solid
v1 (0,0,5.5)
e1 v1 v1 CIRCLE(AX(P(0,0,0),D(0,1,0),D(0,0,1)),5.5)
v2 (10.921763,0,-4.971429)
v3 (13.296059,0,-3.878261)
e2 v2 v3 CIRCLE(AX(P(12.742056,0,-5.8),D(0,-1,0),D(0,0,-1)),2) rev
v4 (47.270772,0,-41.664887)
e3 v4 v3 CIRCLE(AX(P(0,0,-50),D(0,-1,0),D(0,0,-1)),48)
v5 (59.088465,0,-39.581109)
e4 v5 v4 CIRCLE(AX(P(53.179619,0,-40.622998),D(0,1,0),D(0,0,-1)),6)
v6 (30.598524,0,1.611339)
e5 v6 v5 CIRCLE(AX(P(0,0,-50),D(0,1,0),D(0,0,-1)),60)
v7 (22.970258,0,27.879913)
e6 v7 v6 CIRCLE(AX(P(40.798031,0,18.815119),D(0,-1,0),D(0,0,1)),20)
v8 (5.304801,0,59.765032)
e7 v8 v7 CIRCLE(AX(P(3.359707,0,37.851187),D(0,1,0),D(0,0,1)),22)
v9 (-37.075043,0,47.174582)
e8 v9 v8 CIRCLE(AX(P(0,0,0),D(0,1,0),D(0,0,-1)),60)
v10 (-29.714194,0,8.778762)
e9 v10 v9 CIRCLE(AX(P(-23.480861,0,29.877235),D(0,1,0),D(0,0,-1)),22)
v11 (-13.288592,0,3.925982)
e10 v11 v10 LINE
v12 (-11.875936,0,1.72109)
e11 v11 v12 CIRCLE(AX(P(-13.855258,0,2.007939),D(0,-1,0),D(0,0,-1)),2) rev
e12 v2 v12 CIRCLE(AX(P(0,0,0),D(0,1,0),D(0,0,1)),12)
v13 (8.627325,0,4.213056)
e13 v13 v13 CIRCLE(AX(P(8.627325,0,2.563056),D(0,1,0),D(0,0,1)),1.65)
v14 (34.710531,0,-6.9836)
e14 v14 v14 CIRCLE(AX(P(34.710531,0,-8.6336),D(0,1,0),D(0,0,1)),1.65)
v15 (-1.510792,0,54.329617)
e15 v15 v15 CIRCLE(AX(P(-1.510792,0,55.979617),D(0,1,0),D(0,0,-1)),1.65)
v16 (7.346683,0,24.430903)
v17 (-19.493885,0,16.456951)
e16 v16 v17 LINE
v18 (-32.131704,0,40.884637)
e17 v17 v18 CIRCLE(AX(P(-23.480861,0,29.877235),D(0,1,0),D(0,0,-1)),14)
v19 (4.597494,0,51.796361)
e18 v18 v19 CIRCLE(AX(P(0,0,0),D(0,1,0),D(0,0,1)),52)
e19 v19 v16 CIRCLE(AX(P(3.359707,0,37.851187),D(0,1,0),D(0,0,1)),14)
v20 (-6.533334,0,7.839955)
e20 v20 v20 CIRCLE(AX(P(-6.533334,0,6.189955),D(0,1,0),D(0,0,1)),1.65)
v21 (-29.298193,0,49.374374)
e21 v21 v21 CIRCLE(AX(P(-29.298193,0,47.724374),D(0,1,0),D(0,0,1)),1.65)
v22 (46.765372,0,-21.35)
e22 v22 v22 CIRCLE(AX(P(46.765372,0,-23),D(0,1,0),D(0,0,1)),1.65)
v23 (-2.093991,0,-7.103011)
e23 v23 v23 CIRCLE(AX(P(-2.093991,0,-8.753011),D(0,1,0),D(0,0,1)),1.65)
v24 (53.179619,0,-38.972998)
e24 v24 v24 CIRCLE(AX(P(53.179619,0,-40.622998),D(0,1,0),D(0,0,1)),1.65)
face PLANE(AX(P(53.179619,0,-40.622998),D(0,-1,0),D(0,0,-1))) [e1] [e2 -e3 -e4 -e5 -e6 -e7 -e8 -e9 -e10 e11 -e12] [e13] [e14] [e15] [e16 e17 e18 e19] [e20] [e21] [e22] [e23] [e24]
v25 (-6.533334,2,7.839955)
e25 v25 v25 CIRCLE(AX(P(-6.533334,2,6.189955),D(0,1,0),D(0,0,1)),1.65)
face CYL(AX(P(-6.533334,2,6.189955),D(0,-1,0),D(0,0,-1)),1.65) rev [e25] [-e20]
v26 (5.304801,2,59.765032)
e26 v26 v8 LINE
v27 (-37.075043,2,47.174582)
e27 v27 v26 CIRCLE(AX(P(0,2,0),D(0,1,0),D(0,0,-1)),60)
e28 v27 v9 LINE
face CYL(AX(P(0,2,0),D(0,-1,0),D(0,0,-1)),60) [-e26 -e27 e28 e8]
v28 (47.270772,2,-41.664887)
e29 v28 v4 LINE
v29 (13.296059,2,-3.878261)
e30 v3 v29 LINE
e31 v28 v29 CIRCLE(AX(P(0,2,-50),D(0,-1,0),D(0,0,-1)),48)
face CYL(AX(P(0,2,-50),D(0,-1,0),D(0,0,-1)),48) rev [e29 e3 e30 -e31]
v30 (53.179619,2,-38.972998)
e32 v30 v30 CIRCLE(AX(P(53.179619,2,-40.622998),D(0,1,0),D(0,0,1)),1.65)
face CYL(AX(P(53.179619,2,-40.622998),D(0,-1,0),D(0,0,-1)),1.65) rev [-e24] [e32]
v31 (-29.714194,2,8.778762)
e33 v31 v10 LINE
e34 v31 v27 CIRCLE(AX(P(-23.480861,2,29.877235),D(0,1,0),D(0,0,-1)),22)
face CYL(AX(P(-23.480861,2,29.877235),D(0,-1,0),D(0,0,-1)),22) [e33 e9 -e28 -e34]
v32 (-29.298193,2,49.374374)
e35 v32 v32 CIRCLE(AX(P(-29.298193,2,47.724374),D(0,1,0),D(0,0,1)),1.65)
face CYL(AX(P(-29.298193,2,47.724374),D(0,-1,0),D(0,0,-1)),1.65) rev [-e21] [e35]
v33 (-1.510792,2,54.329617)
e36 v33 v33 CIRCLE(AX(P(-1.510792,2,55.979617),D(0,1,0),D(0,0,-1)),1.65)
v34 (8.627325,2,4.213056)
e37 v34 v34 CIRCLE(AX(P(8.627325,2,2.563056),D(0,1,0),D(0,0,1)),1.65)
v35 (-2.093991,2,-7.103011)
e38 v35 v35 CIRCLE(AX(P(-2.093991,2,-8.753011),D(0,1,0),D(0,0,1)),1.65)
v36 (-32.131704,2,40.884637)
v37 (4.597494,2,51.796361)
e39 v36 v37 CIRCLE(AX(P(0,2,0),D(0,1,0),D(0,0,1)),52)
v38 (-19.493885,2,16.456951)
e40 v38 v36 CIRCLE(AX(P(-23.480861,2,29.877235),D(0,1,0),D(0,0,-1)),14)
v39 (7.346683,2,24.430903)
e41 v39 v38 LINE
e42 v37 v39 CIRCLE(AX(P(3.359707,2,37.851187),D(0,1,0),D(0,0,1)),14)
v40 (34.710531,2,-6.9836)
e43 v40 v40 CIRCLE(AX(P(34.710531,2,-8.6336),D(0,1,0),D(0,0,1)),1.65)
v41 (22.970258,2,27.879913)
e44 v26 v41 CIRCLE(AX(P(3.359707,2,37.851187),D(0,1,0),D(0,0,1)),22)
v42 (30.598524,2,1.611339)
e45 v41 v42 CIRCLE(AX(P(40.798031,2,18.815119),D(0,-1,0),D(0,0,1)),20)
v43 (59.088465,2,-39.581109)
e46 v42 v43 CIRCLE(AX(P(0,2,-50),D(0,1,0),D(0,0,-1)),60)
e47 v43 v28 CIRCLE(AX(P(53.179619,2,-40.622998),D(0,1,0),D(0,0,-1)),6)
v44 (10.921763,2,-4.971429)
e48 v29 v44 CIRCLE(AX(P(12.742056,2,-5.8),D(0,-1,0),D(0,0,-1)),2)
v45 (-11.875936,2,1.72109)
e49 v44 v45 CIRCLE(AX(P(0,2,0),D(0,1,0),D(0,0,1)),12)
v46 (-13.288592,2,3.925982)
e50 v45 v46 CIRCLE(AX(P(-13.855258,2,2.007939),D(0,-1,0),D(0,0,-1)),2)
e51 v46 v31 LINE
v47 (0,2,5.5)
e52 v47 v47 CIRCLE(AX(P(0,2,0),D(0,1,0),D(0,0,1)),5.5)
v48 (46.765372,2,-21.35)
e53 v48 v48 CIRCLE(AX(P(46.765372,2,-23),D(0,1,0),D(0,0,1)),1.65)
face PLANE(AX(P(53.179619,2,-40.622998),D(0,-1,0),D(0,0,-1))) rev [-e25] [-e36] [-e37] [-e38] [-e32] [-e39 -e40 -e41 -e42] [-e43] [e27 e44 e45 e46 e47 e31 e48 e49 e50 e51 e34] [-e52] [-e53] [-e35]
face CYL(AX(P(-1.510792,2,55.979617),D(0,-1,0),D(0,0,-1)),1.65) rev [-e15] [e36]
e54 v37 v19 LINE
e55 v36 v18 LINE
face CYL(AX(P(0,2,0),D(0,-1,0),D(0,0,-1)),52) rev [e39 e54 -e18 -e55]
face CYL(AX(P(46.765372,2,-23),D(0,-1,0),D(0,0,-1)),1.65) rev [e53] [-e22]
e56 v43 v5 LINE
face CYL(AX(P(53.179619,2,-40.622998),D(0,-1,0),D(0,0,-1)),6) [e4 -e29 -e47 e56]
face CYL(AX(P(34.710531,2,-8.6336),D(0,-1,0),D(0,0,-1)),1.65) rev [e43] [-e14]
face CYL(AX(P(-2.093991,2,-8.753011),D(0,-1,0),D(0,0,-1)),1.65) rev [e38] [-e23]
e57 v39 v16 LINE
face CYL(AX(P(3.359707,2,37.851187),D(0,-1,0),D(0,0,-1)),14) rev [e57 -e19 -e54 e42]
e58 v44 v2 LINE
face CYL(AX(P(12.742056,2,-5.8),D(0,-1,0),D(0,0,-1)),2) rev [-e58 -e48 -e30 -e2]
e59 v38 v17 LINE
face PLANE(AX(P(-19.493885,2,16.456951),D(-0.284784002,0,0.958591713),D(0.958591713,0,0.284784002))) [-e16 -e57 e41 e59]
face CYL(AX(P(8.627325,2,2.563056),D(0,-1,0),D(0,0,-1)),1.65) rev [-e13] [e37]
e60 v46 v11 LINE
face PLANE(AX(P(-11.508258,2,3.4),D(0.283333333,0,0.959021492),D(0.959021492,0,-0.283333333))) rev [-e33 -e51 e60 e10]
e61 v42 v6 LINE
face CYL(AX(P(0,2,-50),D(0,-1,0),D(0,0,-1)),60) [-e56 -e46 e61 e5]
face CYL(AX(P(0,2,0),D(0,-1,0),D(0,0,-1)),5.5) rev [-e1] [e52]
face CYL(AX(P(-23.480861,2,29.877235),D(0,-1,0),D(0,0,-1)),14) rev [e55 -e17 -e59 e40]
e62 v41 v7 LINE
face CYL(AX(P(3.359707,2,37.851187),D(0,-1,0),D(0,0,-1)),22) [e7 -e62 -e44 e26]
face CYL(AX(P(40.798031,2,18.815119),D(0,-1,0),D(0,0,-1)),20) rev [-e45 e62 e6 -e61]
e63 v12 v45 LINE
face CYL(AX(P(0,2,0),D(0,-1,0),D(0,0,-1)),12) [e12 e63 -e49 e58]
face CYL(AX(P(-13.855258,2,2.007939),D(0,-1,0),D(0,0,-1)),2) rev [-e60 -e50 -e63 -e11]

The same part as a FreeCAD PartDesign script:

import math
import FreeCAD as App
import Part
import Sketcher
from FreeCAD import Vector
Q = App.Units.Quantity


def edges_at(feature, points):
    """Names of the edges that pass closest to the given points."""
    edges = feature.Shape.Edges
    near = lambda p: min(range(len(edges)), key=lambda i: edges[i].distToShape(Part.Vertex(*p))[0])
    return sorted({f"Edge{near(p) + 1}" for p in points})

doc = App.newDocument("Part")
body = doc.addObject("PartDesign::Body", "Body")

# Sketch on XZ plane
sketch1 = doc.addObject("Sketcher::SketchObject", "Sketch")
body.addObject(sketch1)
sketch1.AttachmentSupport = (doc.XZ_Plane, [""])
sketch1.MapMode = "FlatFace"
sketch1.addGeometry([
    Part.LineSegment(Vector(-11.5, 3.4, 0), Vector(-29.7, 8.8, 0)),  # 0
    Part.ArcOfCircle(Part.Circle(Vector(-23.5, 29.9, 0), Vector(0, 0, 1), 22), math.radians(128), math.radians(254)),  # 1
    Part.ArcOfCircle(Part.Circle(Vector(0, 0, 0), Vector(0, 0, 1), 60), math.radians(85), math.radians(128)),  # 2
    Part.ArcOfCircle(Part.Circle(Vector(3.4, 37.9, 0), Vector(0, 0, 1), 22), math.radians(-27), math.radians(85)),  # 3
    Part.ArcOfCircle(Part.Circle(Vector(40.8, 18.8, 0), Vector(0, 0, 1), 20), math.radians(153), math.radians(239)),  # 4
    Part.ArcOfCircle(Part.Circle(Vector(0, -50, 0), Vector(0, 0, 1), 60), math.radians(10), math.radians(59)),  # 5
    Part.ArcOfCircle(Part.Circle(Vector(53.2, -40.6, 0), Vector(0, 0, 1), 6), math.radians(-170), math.radians(10)),  # 6
    Part.ArcOfCircle(Part.Circle(Vector(0, -50, 0), Vector(0, 0, 1), 48), math.radians(10), math.radians(76)),  # 7
    Part.ArcOfCircle(Part.Circle(Vector(0, 0, 0), Vector(0, 0, 1), 12), math.radians(164), math.radians(344)),  # 8
    Part.Circle(Vector(-29.3, 47.7, 0), Vector(0, 0, 1), 1.6),  # 9
    Part.Circle(Vector(-1.5, 56, 0), Vector(0, 0, 1), 1.6),  # 10
    Part.ArcOfCircle(Part.Circle(Vector(-23.5, 29.9, 0), Vector(0, 0, 1), 14), math.radians(128), math.radians(287)),  # 11
    Part.LineSegment(Vector(-19.5, 16.5, 0), Vector(7.3, 24.4, 0)),  # 12
    Part.ArcOfCircle(Part.Circle(Vector(3.4, 37.9, 0), Vector(0, 0, 1), 14), math.radians(-73), math.radians(85)),  # 13
    Part.ArcOfCircle(Part.Circle(Vector(0, 0, 0), Vector(0, 0, 1), 52), math.radians(85), math.radians(128)),  # 14
    Part.Circle(Vector(-6.5, 6.2, 0), Vector(0, 0, 1), 1.6),  # 15
    Part.Circle(Vector(8.6, 2.6, 0), Vector(0, 0, 1), 1.6),  # 16
    Part.Circle(Vector(0, 0, 0), Vector(0, 0, 1), 5.5),  # 17
    Part.Circle(Vector(-2.1, -8.8, 0), Vector(0, 0, 1), 1.6),  # 18
    Part.Circle(Vector(34.7, -8.6, 0), Vector(0, 0, 1), 1.6),  # 19
    Part.Circle(Vector(46.8, -23, 0), Vector(0, 0, 1), 1.6),  # 20
    Part.Circle(Vector(53.2, -40.6, 0), Vector(0, 0, 1), 1.6),  # 21
], False)
sketch1.addConstraint([
    Sketcher.Constraint("Tangent", 0, 2, 1, 2),
    Sketcher.Constraint("Tangent", 1, 1, 2, 2),
    Sketcher.Constraint("Tangent", 2, 1, 3, 2),
    Sketcher.Constraint("Tangent", 3, 1, 4, 1),
    Sketcher.Constraint("Tangent", 4, 2, 5, 2),
    Sketcher.Constraint("Tangent", 5, 1, 6, 2),
    Sketcher.Constraint("Tangent", 6, 1, 7, 1),
    Sketcher.Constraint("Coincident", 7, 2, 8, 2),
    Sketcher.Constraint("Coincident", 8, 1, 0, 1),
    Sketcher.Constraint("Tangent", 11, 2, 12, 1),
    Sketcher.Constraint("Tangent", 12, 2, 13, 1),
    Sketcher.Constraint("Tangent", 13, 2, 14, 1),
    Sketcher.Constraint("Tangent", 14, 2, 11, 1),
    Sketcher.Constraint("Coincident", 2, 3, -1, 1),
    Sketcher.Constraint("Coincident", 8, 3, -1, 1),
    Sketcher.Constraint("Coincident", 14, 3, -1, 1),
    Sketcher.Constraint("Coincident", 17, 3, -1, 1),
    Sketcher.Constraint("Coincident", 7, 3, 5, 3),
    Sketcher.Constraint("Coincident", 11, 3, 1, 3),
    Sketcher.Constraint("Coincident", 13, 3, 3, 3),
    Sketcher.Constraint("Coincident", 21, 3, 6, 3),
    Sketcher.Constraint("Equal", 1, 3),
    Sketcher.Constraint("Equal", 2, 5),
    Sketcher.Constraint("Equal", 9, 10),
    Sketcher.Constraint("Equal", 10, 15),
    Sketcher.Constraint("Equal", 15, 16),
    Sketcher.Constraint("Equal", 16, 18),
    Sketcher.Constraint("Equal", 18, 19),
    Sketcher.Constraint("Equal", 19, 20),
    Sketcher.Constraint("Equal", 20, 21),
    Sketcher.Constraint("PointOnObject", 5, 3, -2),
    Sketcher.Constraint("Diameter", 17, Q("11 mm")),
    Sketcher.Constraint("Radius", 1, Q("22 mm")),
    Sketcher.Constraint("Radius", 2, Q("60 mm")),
    Sketcher.Constraint("Radius", 4, Q("20 mm")),
    Sketcher.Constraint("Radius", 6, Q("6 mm")),
    Sketcher.Constraint("Radius", 8, Q("12 mm")),
    Sketcher.Constraint("Radius", 11, Q("14 mm")),
    Sketcher.Constraint("Diameter", 9, Q("3.3 mm")),
    Sketcher.Constraint("Distance", 12, Q("28 mm")),
    Sketcher.Constraint("DistanceY", 5, 3, -1, 1, Q("50 mm")),
    Sketcher.Constraint("DistanceY", 20, 3, -1, 1, Q("23 mm")),
    Sketcher.Constraint("DistanceY", -1, 1, 8, 1, Q("3.4 mm")),
    Sketcher.Constraint("DistanceY", 6, 3, -1, 1, Q("40.622998 mm")),
    Sketcher.Constraint("DistanceY", 19, 3, -1, 1, Q("8.6336 mm")),
    Sketcher.Constraint("DistanceX", -1, 1, 2, 1, Q("5.304801 mm")),
    Sketcher.Constraint("DistanceX", 9, 3, 3, 3, Q("32.6579 mm")),
    Sketcher.Constraint("DistanceX", 10, 3, 3, 3, Q("4.870499 mm")),
    Sketcher.Constraint("DistanceY", 16, 3, 15, 3, Q("3.626899 mm")),
    Sketcher.Constraint("DistanceX", 19, 3, 4, 3, Q("6.0875 mm")),
    Sketcher.Constraint("DistanceX", 16, 3, 4, 2, Q("21.971198 mm")),
    Sketcher.Constraint("DistanceX", 20, 3, 6, 1, Q("0.5054 mm")),
    Sketcher.Constraint("DistanceX", 18, 3, -1, 1, Q("2.093991 mm")),
    Sketcher.Constraint("DistanceY", 18, 3, -1, 1, Q("8.753011 mm")),
    Sketcher.Constraint("DistanceY", 1, 3, 9, 3, Q("17.847139 mm")),
    Sketcher.Constraint("DistanceY", 3, 3, 10, 3, Q("18.12843 mm")),
    Sketcher.Constraint("DistanceY", 15, 3, 1, 3, Q("23.68728 mm")),
    Sketcher.Constraint("DistanceX", 15, 3, 16, 3, Q("15.16066 mm")),
])
pad1 = doc.addObject("PartDesign::Pad", "Pad")
body.addObject(pad1)
pad1.Profile = sketch1
pad1.Length = 2
pad1.Reversed = True
doc.recompute()

fillet = doc.addObject("PartDesign::Fillet", "Fillet")
body.addObject(fillet)
fillet.Base = (pad1, edges_at(pad1, [(-11.508, 1, 3.4), (11.508, 1, -3.4)]))
fillet.Radius = 2

doc.recompute()
